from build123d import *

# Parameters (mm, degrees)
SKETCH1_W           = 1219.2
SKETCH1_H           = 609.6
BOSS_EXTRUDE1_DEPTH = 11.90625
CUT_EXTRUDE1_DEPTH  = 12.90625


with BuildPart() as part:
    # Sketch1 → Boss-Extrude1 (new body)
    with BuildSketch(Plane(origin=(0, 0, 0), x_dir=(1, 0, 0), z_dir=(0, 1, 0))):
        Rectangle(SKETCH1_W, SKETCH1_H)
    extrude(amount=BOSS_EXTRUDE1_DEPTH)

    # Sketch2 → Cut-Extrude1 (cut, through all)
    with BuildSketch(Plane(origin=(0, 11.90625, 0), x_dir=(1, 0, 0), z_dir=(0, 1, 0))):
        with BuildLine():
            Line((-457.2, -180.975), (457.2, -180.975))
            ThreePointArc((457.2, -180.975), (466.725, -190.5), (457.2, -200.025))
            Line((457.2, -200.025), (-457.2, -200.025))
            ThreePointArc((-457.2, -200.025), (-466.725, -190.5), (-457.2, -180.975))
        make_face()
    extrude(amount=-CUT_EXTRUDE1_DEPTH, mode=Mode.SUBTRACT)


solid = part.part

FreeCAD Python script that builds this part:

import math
import FreeCAD as App
import Part
import Sketcher

V = App.Vector
Q = App.Units.Quantity


def add_polygon(sketch, points):
    """Adds a closed chain of lines whose ends are joined by coincident constraints."""
    first, n = sketch.GeometryCount, len(points)
    for a, b in zip(points, points[1:] + points[:1]):
        sketch.addGeometry(Part.LineSegment(App.Vector(*a, 0), App.Vector(*b, 0)), False)
    for i in range(n):
        sketch.addConstraint(Sketcher.Constraint("Coincident", first + i, 2, first + (i + 1) % n, 1))

doc = App.newDocument("Part")
body = doc.addObject("PartDesign::Body", "Body")

sketch1 = body.newObject("Sketcher::SketchObject", "Sketch")
sketch1.AttachmentSupport = (doc.getObject("XZ_Plane"), [""])
sketch1.MapMode = "FlatFace"
add_polygon(sketch1, [(-610, -305), (-610, 305), (610, 305), (610, -305)])
sketch1.addConstraint([
    Sketcher.Constraint("Vertical", 0),
    Sketcher.Constraint("Horizontal", 1),
    Sketcher.Constraint("Vertical", 2),
    Sketcher.Constraint("Horizontal", 3),
    Sketcher.Constraint("Symmetric", 0, 2, 2, 2, -1, 1),
    Sketcher.Constraint("DistanceX", 1, 1, 1, 2, Q("48 in")),
    Sketcher.Constraint("DistanceY", 0, 1, 0, 2, Q("24 in")),
])
pad1 = body.newObject("PartDesign::Pad", "Pad")
pad1.Profile = sketch1
pad1.Length = Q("0.46875 in")
pad1.Reversed = True

sketch2 = body.newObject("Sketcher::SketchObject", "Sketch001")
sketch2.AttachmentSupport = (doc.getObject("XZ_Plane"), [""])
sketch2.MapMode = "FlatFace"
sketch2.AttachmentOffset = App.Placement(V(0, 0, -0.46875 * 25.4), App.Rotation())
sketch2.addGeometry([
    Part.LineSegment(V(457, 181, 0), V(-457, 181, 0)),
    Part.ArcOfCircle(Part.Circle(V(-457, 190, 0), V(0, 0, 1), 10), math.radians(90), math.radians(270)),
    Part.LineSegment(V(-457, 200, 0), V(457, 200, 0)),
    Part.ArcOfCircle(Part.Circle(V(457, 190, 0), V(0, 0, 1), 10), math.radians(-90), math.radians(90)),
], False)
sketch2.addConstraint([
    Sketcher.Constraint("Tangent", 0, 2, 1, 2),
    Sketcher.Constraint("Tangent", 1, 1, 2, 1),
    Sketcher.Constraint("Tangent", 2, 2, 3, 2),
    Sketcher.Constraint("Tangent", 3, 1, 0, 1),
    Sketcher.Constraint("Horizontal", 0),
    Sketcher.Constraint("Horizontal", 2),
    Sketcher.Constraint("DistanceX", 0, 2, 0, 1, Q("36 in")),
    Sketcher.Constraint("DistanceX", 1, 3, -1, 1, Q("18 in")),
    Sketcher.Constraint("Radius", 1, Q("0.375 in")),
    Sketcher.Constraint("DistanceY", -1, 1, 1, 3, Q("7.5 in")),
])
pocket1 = body.newObject("PartDesign::Pocket", "Pocket")
pocket1.Profile = sketch2
pocket1.Type = "ThroughAll"
pocket1.Reversed = True

doc.recompute()
